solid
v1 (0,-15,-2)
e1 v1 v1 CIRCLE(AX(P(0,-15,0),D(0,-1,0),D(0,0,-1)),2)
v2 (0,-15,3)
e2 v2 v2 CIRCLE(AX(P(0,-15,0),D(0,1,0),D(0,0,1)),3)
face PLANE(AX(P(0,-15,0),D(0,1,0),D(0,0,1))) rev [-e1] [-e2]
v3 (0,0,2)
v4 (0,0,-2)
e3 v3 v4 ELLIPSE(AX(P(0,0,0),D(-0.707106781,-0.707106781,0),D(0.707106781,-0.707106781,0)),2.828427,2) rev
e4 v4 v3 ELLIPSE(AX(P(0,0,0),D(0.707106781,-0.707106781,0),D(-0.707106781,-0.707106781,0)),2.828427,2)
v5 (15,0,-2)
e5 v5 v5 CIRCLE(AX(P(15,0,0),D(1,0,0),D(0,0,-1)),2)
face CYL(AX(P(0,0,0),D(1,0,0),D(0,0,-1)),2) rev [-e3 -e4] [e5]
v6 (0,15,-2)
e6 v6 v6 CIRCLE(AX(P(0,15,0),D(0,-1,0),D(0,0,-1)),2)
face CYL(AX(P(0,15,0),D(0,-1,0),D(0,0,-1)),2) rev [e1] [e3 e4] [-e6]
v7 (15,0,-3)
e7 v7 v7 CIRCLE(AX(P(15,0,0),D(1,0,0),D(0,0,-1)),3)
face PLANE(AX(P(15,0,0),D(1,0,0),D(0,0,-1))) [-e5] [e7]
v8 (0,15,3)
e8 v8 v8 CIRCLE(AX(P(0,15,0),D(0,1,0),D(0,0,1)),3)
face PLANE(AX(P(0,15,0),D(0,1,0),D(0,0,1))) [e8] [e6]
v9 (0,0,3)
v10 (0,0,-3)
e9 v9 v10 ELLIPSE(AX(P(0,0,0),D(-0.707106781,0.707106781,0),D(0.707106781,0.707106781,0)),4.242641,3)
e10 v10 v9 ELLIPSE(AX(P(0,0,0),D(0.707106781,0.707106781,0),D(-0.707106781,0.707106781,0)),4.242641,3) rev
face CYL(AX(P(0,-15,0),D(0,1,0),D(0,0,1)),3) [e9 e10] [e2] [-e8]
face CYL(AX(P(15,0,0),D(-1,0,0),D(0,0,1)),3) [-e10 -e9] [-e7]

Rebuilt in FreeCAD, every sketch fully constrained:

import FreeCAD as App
import Part
import Sketcher
Q = App.Units.Quantity

doc = App.newDocument("Part")
params = doc.addObject("Spreadsheet::Sheet", "Params")
for row, (alias, value) in enumerate([
    ("sketch1_diameter", "6 mm"),
    ("pad1_length", "15 mm"),
    ("pad1_length2", "15 mm"),
    ("sketch2_diameter", "6 mm"),
    ("pad2_length", "15 mm"),
    ("sketch3_diameter", "4 mm"),
    ("sketch4_diameter", "4 mm"),
    ("pocket2_length", "15 mm"),
], start=1):
    params.set(f"A{row}", alias)
    params.set(f"B{row}", "=" + value)
    params.setAlias(f"B{row}", alias)

body = doc.addObject("PartDesign::Body", "Body")

# Sketch on XZ plane
sketch1 = body.newObject("Sketcher::SketchObject", "Sketch")
sketch1.AttachmentSupport = (doc.getObject("XZ_Plane"), [""])
sketch1.MapMode = "FlatFace"
sketch1.addGeometry(Part.Circle(App.Vector(0, 0, 0), App.Vector(0, 0, 1), 3), False)
sketch1.addConstraint(Sketcher.Constraint("Coincident", 0, 3, -1, 1))
sketch1.addConstraint(Sketcher.Constraint("Diameter", 0, Q("6 mm")))
sketch1.setExpression("Constraints[1]", "Params.sketch1_diameter")
pad1 = body.newObject("PartDesign::Pad", "Pad")
pad1.Profile = sketch1
pad1.Type = "TwoLengths"
pad1.setExpression("Length", "Params.pad1_length")
pad1.setExpression("Length2", "Params.pad1_length2")
pad1.Reversed = True

# Sketch on YZ plane
sketch2 = body.newObject("Sketcher::SketchObject", "Sketch001")
sketch2.AttachmentSupport = (doc.getObject("YZ_Plane"), [""])
sketch2.MapMode = "FlatFace"
sketch2.addGeometry(Part.Circle(App.Vector(0, 0, 0), App.Vector(0, 0, 1), 3), False)
sketch2.addConstraint(Sketcher.Constraint("Coincident", 0, 3, -1, 1))
sketch2.addConstraint(Sketcher.Constraint("Diameter", 0, Q("6 mm")))
sketch2.setExpression("Constraints[1]", "Params.sketch2_diameter")
pad2 = body.newObject("PartDesign::Pad", "Pad001")
pad2.Profile = sketch2
pad2.setExpression("Length", "Params.pad2_length")

# Sketch on XZ plane
sketch3 = body.newObject("Sketcher::SketchObject", "Sketch002")
sketch3.AttachmentSupport = (doc.getObject("XZ_Plane"), [""])
sketch3.MapMode = "FlatFace"
sketch3.AttachmentOffset = App.Placement(App.Vector(0, 0, 15), App.Rotation())
sketch3.addGeometry(Part.Circle(App.Vector(0, 0, 0), App.Vector(0, 0, 1), 2), False)
sketch3.addConstraint(Sketcher.Constraint("Coincident", 0, 3, -1, 1))
sketch3.addConstraint(Sketcher.Constraint("Diameter", 0, Q("4 mm")))
sketch3.setExpression("Constraints[1]", "Params.sketch3_diameter")
pocket1 = body.newObject("PartDesign::Pocket", "Pocket")
pocket1.Profile = sketch3
pocket1.Type = "ThroughAll"

# Sketch on YZ plane
sketch4 = body.newObject("Sketcher::SketchObject", "Sketch003")
sketch4.AttachmentSupport = (doc.getObject("YZ_Plane"), [""])
sketch4.MapMode = "FlatFace"
sketch4.AttachmentOffset = App.Placement(App.Vector(0, 0, 15), App.Rotation())
sketch4.addGeometry(Part.Circle(App.Vector(0, 0, 0), App.Vector(0, 0, 1), 2), False)
sketch4.addConstraint(Sketcher.Constraint("Coincident", 0, 3, -1, 1))
sketch4.addConstraint(Sketcher.Constraint("Diameter", 0, Q("4 mm")))
sketch4.setExpression("Constraints[1]", "Params.sketch4_diameter")
pocket2 = body.newObject("PartDesign::Pocket", "Pocket001")
pocket2.Profile = sketch4
pocket2.setExpression("Length", "Params.pocket2_length")

doc.recompute()
